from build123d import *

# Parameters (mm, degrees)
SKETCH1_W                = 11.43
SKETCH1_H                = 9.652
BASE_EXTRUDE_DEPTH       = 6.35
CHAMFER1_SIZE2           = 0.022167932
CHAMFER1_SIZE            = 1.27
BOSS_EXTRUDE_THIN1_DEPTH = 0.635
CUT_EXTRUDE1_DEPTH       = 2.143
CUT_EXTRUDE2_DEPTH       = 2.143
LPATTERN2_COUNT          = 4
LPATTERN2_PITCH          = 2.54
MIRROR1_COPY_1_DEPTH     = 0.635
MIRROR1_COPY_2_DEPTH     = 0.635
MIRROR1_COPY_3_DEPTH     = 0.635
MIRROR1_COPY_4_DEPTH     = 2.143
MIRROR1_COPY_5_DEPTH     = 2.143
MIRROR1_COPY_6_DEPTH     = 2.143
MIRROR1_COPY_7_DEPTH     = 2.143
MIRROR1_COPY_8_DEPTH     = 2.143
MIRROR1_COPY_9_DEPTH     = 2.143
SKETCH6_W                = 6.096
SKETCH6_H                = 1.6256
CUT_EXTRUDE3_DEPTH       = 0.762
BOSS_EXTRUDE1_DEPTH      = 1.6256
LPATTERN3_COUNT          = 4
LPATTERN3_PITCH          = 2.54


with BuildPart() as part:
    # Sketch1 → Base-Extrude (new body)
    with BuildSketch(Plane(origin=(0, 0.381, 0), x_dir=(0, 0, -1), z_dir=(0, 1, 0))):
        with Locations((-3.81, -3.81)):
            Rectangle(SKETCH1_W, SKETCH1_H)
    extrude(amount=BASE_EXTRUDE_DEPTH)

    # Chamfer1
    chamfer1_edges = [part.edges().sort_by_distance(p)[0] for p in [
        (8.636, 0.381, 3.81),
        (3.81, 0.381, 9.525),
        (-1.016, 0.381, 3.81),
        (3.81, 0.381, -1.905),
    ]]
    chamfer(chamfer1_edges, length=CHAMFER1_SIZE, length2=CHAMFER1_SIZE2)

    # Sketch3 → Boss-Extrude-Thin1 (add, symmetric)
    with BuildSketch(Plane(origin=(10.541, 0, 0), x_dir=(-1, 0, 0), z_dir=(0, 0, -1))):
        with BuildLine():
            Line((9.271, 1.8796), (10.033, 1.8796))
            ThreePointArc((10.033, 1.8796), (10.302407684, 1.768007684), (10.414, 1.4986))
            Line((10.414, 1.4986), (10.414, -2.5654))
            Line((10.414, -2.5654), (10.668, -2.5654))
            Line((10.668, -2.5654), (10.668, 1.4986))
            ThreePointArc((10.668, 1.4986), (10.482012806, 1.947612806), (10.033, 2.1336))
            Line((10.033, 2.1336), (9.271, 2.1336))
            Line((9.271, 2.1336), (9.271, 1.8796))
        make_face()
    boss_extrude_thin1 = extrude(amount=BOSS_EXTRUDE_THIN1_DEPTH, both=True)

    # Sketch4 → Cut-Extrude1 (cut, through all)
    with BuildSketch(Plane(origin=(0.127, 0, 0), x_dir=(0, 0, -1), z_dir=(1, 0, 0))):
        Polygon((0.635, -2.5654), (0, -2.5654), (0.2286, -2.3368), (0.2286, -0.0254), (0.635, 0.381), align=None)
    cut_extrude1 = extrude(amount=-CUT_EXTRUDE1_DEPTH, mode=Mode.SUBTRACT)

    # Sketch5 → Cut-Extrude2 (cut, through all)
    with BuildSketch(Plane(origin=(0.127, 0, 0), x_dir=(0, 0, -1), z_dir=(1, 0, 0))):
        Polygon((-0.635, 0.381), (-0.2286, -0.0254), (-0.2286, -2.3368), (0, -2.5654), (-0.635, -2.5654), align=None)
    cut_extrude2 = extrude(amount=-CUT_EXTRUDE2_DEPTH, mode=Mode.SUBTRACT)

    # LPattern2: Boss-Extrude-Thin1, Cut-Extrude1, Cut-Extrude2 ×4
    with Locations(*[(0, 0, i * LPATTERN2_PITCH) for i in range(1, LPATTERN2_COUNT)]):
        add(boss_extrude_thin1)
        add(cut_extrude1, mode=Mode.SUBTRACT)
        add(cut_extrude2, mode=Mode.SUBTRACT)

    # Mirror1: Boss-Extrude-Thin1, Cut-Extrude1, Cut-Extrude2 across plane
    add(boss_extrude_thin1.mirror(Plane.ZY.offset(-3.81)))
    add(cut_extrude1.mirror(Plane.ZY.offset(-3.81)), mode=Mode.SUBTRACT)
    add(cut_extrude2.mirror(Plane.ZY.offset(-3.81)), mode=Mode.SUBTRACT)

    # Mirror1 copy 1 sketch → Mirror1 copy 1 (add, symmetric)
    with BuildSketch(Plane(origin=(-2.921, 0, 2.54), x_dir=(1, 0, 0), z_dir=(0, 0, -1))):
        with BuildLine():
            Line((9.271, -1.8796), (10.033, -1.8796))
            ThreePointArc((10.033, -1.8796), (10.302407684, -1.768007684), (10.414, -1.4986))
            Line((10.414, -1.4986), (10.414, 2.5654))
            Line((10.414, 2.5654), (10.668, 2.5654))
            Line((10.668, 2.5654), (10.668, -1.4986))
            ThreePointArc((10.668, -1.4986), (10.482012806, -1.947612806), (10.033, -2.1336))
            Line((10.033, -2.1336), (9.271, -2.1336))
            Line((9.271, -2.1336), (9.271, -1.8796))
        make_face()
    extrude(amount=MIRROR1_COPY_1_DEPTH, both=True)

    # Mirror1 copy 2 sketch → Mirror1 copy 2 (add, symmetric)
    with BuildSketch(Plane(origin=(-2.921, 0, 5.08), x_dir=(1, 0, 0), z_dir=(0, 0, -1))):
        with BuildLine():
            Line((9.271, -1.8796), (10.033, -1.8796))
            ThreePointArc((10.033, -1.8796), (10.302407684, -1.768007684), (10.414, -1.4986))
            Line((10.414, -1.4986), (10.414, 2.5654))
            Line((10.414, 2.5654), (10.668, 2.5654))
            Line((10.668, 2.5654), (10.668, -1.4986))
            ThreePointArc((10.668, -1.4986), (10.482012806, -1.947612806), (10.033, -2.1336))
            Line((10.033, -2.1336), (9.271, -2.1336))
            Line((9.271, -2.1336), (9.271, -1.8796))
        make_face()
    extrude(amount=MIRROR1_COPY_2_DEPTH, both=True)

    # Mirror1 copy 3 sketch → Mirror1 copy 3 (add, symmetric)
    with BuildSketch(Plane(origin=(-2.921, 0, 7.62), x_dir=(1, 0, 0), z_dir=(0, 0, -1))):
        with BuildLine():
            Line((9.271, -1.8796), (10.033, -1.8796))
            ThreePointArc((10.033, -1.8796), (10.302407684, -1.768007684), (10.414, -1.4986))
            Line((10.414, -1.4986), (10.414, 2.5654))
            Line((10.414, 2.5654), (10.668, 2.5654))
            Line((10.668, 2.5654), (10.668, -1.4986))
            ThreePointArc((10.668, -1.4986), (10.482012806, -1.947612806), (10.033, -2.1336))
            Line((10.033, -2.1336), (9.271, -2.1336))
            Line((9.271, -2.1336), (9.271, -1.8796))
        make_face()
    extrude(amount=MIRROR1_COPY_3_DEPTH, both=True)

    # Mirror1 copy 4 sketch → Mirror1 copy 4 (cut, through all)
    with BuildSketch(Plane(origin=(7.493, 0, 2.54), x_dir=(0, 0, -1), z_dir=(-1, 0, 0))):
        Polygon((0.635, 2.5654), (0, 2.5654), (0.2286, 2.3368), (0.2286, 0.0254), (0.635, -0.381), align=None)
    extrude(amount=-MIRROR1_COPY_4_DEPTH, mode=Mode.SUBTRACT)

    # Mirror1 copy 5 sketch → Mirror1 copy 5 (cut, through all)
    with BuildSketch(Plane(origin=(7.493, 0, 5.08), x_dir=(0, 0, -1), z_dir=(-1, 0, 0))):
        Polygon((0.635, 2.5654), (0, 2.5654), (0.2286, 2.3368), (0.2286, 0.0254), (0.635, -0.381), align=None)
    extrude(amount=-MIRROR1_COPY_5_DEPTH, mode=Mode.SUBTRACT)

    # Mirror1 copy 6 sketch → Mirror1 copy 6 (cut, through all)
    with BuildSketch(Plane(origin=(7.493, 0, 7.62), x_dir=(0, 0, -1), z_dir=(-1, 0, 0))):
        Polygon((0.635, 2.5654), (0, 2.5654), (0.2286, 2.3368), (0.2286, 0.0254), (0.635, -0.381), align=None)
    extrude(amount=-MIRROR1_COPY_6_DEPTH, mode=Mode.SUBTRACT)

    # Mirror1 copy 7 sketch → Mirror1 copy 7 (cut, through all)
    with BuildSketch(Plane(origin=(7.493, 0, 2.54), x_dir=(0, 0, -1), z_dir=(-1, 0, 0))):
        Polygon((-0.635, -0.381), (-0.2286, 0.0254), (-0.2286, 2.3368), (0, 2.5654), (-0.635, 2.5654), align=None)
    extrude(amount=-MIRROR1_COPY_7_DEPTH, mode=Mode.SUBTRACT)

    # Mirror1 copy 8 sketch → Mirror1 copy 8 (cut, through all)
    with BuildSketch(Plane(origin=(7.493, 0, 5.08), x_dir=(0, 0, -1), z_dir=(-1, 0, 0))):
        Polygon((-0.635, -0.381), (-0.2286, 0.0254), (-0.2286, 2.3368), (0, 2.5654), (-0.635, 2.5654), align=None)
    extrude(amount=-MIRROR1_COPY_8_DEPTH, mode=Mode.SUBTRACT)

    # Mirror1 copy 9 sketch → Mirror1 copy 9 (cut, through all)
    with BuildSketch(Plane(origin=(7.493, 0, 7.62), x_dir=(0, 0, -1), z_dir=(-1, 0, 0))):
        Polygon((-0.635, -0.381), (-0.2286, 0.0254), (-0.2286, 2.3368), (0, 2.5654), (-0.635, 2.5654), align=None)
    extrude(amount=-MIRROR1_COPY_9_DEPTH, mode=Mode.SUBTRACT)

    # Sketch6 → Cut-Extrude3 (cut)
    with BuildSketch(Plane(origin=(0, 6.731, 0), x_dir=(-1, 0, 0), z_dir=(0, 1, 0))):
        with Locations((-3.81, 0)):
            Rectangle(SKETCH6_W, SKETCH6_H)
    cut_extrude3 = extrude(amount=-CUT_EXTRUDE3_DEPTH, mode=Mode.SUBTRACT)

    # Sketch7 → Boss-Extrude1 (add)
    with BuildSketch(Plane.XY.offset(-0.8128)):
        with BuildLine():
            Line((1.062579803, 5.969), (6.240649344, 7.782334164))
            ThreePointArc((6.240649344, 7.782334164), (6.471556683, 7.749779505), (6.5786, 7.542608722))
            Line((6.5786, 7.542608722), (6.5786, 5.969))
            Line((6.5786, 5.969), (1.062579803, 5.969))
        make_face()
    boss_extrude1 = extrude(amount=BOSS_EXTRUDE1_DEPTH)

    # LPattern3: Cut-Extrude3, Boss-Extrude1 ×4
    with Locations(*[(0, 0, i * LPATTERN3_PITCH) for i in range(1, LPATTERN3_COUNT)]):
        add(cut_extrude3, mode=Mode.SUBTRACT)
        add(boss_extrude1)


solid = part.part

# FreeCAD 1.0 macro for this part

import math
import FreeCAD as App
import Part
import Sketcher
Q = App.Units.Quantity


def edges_at(feature, points):
    """Names of the edges that pass closest to the given points."""
    edges = feature.Shape.Edges
    near = lambda p: min(range(len(edges)), key=lambda i: edges[i].distToShape(Part.Vertex(*p))[0])
    return sorted({f"Edge{near(p) + 1}" for p in points})

doc = App.newDocument("Part")
body = doc.addObject("PartDesign::Body", "Body")

# Sketch on XZ plane
sketch1 = doc.addObject("Sketcher::SketchObject", "Sketch")
body.addObject(sketch1)
sketch1.AttachmentSupport = (doc.XZ_Plane, [""])
sketch1.MapMode = "FlatFace"
sketch1.AttachmentOffset = App.Placement(App.Vector(0, 0, -0.015 * 25.4), App.Rotation())
sketch1.addGeometry([
    Part.LineSegment(App.Vector(-1.016, 9.525, 0), App.Vector(8.636, 9.525, 0)),
    Part.LineSegment(App.Vector(8.636, 9.525, 0), App.Vector(8.636, -1.905, 0)),
    Part.LineSegment(App.Vector(8.636, -1.905, 0), App.Vector(-1.016, -1.905, 0)),
    Part.LineSegment(App.Vector(-1.016, -1.905, 0), App.Vector(-1.016, 9.525, 0)),
], False)
sketch1.addConstraint([
    Sketcher.Constraint("Coincident", 0, 2, 1, 1),
    Sketcher.Constraint("Coincident", 1, 2, 2, 1),
    Sketcher.Constraint("Coincident", 2, 2, 3, 1),
    Sketcher.Constraint("Coincident", 3, 2, 0, 1),
    Sketcher.Constraint("Horizontal", 0),
    Sketcher.Constraint("Vertical", 1),
    Sketcher.Constraint("Horizontal", 2),
    Sketcher.Constraint("Vertical", 3),
    Sketcher.Constraint("DistanceX", 0, 1, 0, 2, Q("0.38 in")),
    Sketcher.Constraint("DistanceY", 1, 2, 1, 1, Q("0.45 in")),
    Sketcher.Constraint("DistanceX", -1, 1, 0, 2, Q("0.34 in")),
    Sketcher.Constraint("DistanceY", -1, 1, 0, 2, Q("0.375 in")),
])
pad1 = doc.addObject("PartDesign::Pad", "Pad")
body.addObject(pad1)
pad1.Profile = sketch1
pad1.Length = Q("0.25 in")
pad1.Reversed = True
doc.recompute()

chamfer = doc.addObject("PartDesign::Chamfer", "Chamfer")
body.addObject(chamfer)
chamfer.Base = (pad1, edges_at(pad1, [
    (8.636, 0.381, 3.81),
    (3.81, 0.381, 9.525),
    (-1.016, 0.381, 3.81),
    (3.81, 0.381, -1.905),
]))
chamfer.ChamferType = "Two distances"
chamfer.Size = Q("0.05 in")
chamfer.Size2 = 0.022168

# Sketch on XY plane
sketch2 = doc.addObject("Sketcher::SketchObject", "Sketch001")
body.addObject(sketch2)
sketch2.AttachmentSupport = (doc.XY_Plane, [""])
sketch2.MapMode = "FlatFace"
sketch2.addGeometry([
    Part.LineSegment(App.Vector(1.27, 1.8796, 0), App.Vector(0.508, 1.8796, 0)),  # 0
    Part.ArcOfCircle(Part.Circle(App.Vector(0.508, 1.4986, 0), App.Vector(0, 0, 1), 0.381), math.radians(90), math.radians(180)),  # 1
    Part.LineSegment(App.Vector(0.127, 1.4986, 0), App.Vector(0.127, -2.5654, 0)),  # 2
    Part.LineSegment(App.Vector(0.127, -2.5654, 0), App.Vector(-0.127, -2.5654, 0)),  # 3
    Part.LineSegment(App.Vector(-0.127, -2.5654, 0), App.Vector(-0.127, 1.4986, 0)),  # 4
    Part.ArcOfCircle(Part.Circle(App.Vector(0.508, 1.4986, 0), App.Vector(0, 0, 1), 0.635), math.radians(90), math.radians(180)),  # 5
    Part.LineSegment(App.Vector(0.508, 2.1336, 0), App.Vector(1.27, 2.1336, 0)),  # 6
    Part.LineSegment(App.Vector(1.27, 2.1336, 0), App.Vector(1.27, 1.8796, 0)),  # 7
], False)
sketch2.addConstraint([
    Sketcher.Constraint("Tangent", 0, 2, 1, 1),
    Sketcher.Constraint("Tangent", 1, 2, 2, 1),
    Sketcher.Constraint("Coincident", 2, 2, 3, 1),
    Sketcher.Constraint("Coincident", 3, 2, 4, 1),
    Sketcher.Constraint("Tangent", 4, 2, 5, 2),
    Sketcher.Constraint("Tangent", 5, 1, 6, 1),
    Sketcher.Constraint("Coincident", 6, 2, 7, 1),
    Sketcher.Constraint("Coincident", 7, 2, 0, 1),
    Sketcher.Constraint("Horizontal", 0),
    Sketcher.Constraint("Vertical", 2),
    Sketcher.Constraint("Horizontal", 3),
    Sketcher.Constraint("Vertical", 4),
    Sketcher.Constraint("Horizontal", 6),
    Sketcher.Constraint("Vertical", 7),
    Sketcher.Constraint("Coincident", 5, 3, 1, 3),
    Sketcher.Constraint("Radius", 1, Q("0.015 in")),
    Sketcher.Constraint("Radius", 5, Q("0.025 in")),
    Sketcher.Constraint("DistanceX", 0, 2, 0, 1, Q("0.03 in")),
    Sketcher.Constraint("DistanceY", 2, 2, 2, 1, Q("0.16 in")),
    Sketcher.Constraint("DistanceX", -1, 1, 1, 3, Q("0.02 in")),
    Sketcher.Constraint("DistanceY", -1, 1, 1, 3, Q("0.059 in")),
])
pad2 = doc.addObject("PartDesign::Pad", "Pad001")
body.addObject(pad2)
pad2.Profile = sketch2
pad2.Length = Q("0.05 in")
pad2.Midplane = True

# Sketch on YZ plane
sketch3 = doc.addObject("Sketcher::SketchObject", "Sketch002")
body.addObject(sketch3)
sketch3.AttachmentSupport = (doc.YZ_Plane, [""])
sketch3.MapMode = "FlatFace"
sketch3.AttachmentOffset = App.Placement(App.Vector(0, 0, 0.005 * 25.4), App.Rotation())
sketch3.addGeometry([
    Part.LineSegment(App.Vector(-2.5654, 0, 0), App.Vector(-2.5654, -0.635, 0)),  # 0
    Part.LineSegment(App.Vector(-2.5654, -0.635, 0), App.Vector(0.381, -0.635, 0)),  # 1
    Part.LineSegment(App.Vector(0.381, -0.635, 0), App.Vector(-0.0254, -0.2286, 0)),  # 2
    Part.LineSegment(App.Vector(-0.0254, -0.2286, 0), App.Vector(-2.3368, -0.2286, 0)),  # 3
    Part.LineSegment(App.Vector(-2.3368, -0.2286, 0), App.Vector(-2.5654, 0, 0)),  # 4
], False)
sketch3.addConstraint([
    Sketcher.Constraint("Coincident", 0, 2, 1, 1),
    Sketcher.Constraint("Coincident", 1, 2, 2, 1),
    Sketcher.Constraint("Coincident", 2, 2, 3, 1),
    Sketcher.Constraint("Coincident", 3, 2, 4, 1),
    Sketcher.Constraint("Coincident", 4, 2, 0, 1),
    Sketcher.Constraint("Vertical", 0),
    Sketcher.Constraint("Horizontal", 1),
    Sketcher.Constraint("Horizontal", 3),
    Sketcher.Constraint("PointOnObject", 4, 2, -1),
    Sketcher.Constraint("Parallel", 2, 4),
    Sketcher.Constraint("Angle", 2, Q("135 deg")),
    Sketcher.Constraint("DistanceX", 0, 2, 2, 2, Q("0.1 in")),
    Sketcher.Constraint("DistanceX", 1, 1, 1, 2, Q("0.116 in")),
    Sketcher.Constraint("DistanceX", 3, 2, 3, 1, Q("0.091 in")),
    Sketcher.Constraint("DistanceX", 0, 2, -1, 1, Q("0.101 in")),
])
pocket1 = doc.addObject("PartDesign::Pocket", "Pocket")
body.addObject(pocket1)
pocket1.Profile = sketch3
pocket1.Type = "ThroughAll"

# Sketch on YZ plane
sketch4 = doc.addObject("Sketcher::SketchObject", "Sketch003")
body.addObject(sketch4)
sketch4.AttachmentSupport = (doc.YZ_Plane, [""])
sketch4.MapMode = "FlatFace"
sketch4.AttachmentOffset = App.Placement(App.Vector(0, 0, 0.005 * 25.4), App.Rotation())
sketch4.addGeometry([
    Part.LineSegment(App.Vector(-0.0254, 0.2286, 0), App.Vector(0.381, 0.635, 0)),  # 0
    Part.LineSegment(App.Vector(0.381, 0.635, 0), App.Vector(-2.5654, 0.635, 0)),  # 1
    Part.LineSegment(App.Vector(-2.5654, 0.635, 0), App.Vector(-2.5654, 0, 0)),  # 2
    Part.LineSegment(App.Vector(-2.5654, 0, 0), App.Vector(-2.3368, 0.2286, 0)),  # 3
    Part.LineSegment(App.Vector(-2.3368, 0.2286, 0), App.Vector(-0.0254, 0.2286, 0)),  # 4
], False)
sketch4.addConstraint([
    Sketcher.Constraint("Coincident", 0, 2, 1, 1),
    Sketcher.Constraint("Coincident", 1, 2, 2, 1),
    Sketcher.Constraint("Coincident", 2, 2, 3, 1),
    Sketcher.Constraint("Coincident", 3, 2, 4, 1),
    Sketcher.Constraint("Coincident", 4, 2, 0, 1),
    Sketcher.Constraint("Horizontal", 1),
    Sketcher.Constraint("Vertical", 2),
    Sketcher.Constraint("Horizontal", 4),
    Sketcher.Constraint("PointOnObject", 2, 2, -1),
    Sketcher.Constraint("Parallel", 0, 3),
    Sketcher.Constraint("Angle", 0, Q("45 deg")),
    Sketcher.Constraint("DistanceX", 2, 2, 4, 2, Q("0.1 in")),
    Sketcher.Constraint("DistanceX", 1, 2, 1, 1, Q("0.116 in")),
    Sketcher.Constraint("DistanceX", 4, 1, 4, 2, Q("0.091 in")),
    Sketcher.Constraint("DistanceX", -1, 1, 0, 2, Q("0.015 in")),
])
pocket2 = doc.addObject("PartDesign::Pocket", "Pocket001")
body.addObject(pocket2)
pocket2.Profile = sketch4
pocket2.Type = "ThroughAll"
doc.recompute()

linearpattern = doc.addObject("PartDesign::LinearPattern", "LinearPattern")
body.addObject(linearpattern)
linearpattern.Originals = [pad2, pocket1, pocket2]
linearpattern.Direction = (doc.Z_Axis, [""])
linearpattern.Mode = "offset"
linearpattern.Offset = Q("0.1 in")
linearpattern.Occurrences = 4
body.Tip = linearpattern
doc.recompute()

datumplane = doc.addObject("PartDesign::Plane", "DatumPlane")
body.addObject(datumplane)
datumplane.AttachmentSupport = (doc.YZ_Plane, [""])
datumplane.MapMode = "FlatFace"
datumplane.AttachmentOffset = App.Placement(App.Vector(0, 0, 0.15 * 25.4), App.Rotation())
mirrored = doc.addObject("PartDesign::Mirrored", "Mirrored")
body.addObject(mirrored)
mirrored.Originals = [pad2, pocket1, pocket2]
mirrored.MirrorPlane = (datumplane, [""])
body.Tip = mirrored

# Sketch on XY plane
sketch5 = doc.addObject("Sketcher::SketchObject", "Sketch004")
body.addObject(sketch5)
sketch5.AttachmentSupport = (doc.XY_Plane, [""])
sketch5.MapMode = "FlatFace"
sketch5.AttachmentOffset = App.Placement(App.Vector(0, 0, 0.1 * 25.4), App.Rotation())
sketch5.addGeometry([
    Part.LineSegment(App.Vector(7.112, 1.8796, 0), App.Vector(6.35, 1.8796, 0)),  # 0
    Part.LineSegment(App.Vector(6.35, 1.8796, 0), App.Vector(6.35, 2.1336, 0)),  # 1
    Part.LineSegment(App.Vector(6.35, 2.1336, 0), App.Vector(7.112, 2.1336, 0)),  # 2
    Part.ArcOfCircle(Part.Circle(App.Vector(7.112, 1.4986, 0), App.Vector(0, 0, 1), 0.635), math.radians(0), math.radians(90)),  # 3
    Part.LineSegment(App.Vector(7.747, 1.4986, 0), App.Vector(7.747, -2.5654, 0)),  # 4
    Part.LineSegment(App.Vector(7.747, -2.5654, 0), App.Vector(7.493, -2.5654, 0)),  # 5
    Part.LineSegment(App.Vector(7.493, -2.5654, 0), App.Vector(7.493, 1.4986, 0)),  # 6
    Part.ArcOfCircle(Part.Circle(App.Vector(7.112, 1.4986, 0), App.Vector(0, 0, 1), 0.381), math.radians(0), math.radians(90)),  # 7
], False)
sketch5.addConstraint([
    Sketcher.Constraint("Coincident", 0, 2, 1, 1),
    Sketcher.Constraint("Coincident", 1, 2, 2, 1),
    Sketcher.Constraint("Tangent", 2, 2, 3, 2),
    Sketcher.Constraint("Tangent", 3, 1, 4, 1),
    Sketcher.Constraint("Coincident", 4, 2, 5, 1),
    Sketcher.Constraint("Coincident", 5, 2, 6, 1),
    Sketcher.Constraint("Tangent", 6, 2, 7, 1),
    Sketcher.Constraint("Tangent", 7, 2, 0, 1),
    Sketcher.Constraint("Horizontal", 0),
    Sketcher.Constraint("Vertical", 1),
    Sketcher.Constraint("Horizontal", 2),
    Sketcher.Constraint("Vertical", 4),
    Sketcher.Constraint("Horizontal", 5),
    Sketcher.Constraint("Vertical", 6),
    Sketcher.Constraint("Coincident", 7, 3, 3, 3),
    Sketcher.Constraint("Radius", 3, Q("0.025 in")),
    Sketcher.Constraint("Radius", 7, Q("0.015 in")),
    Sketcher.Constraint("DistanceX", 0, 2, 0, 1, Q("0.03 in")),
    Sketcher.Constraint("DistanceY", 4, 2, 4, 1, Q("0.16 in")),
    Sketcher.Constraint("DistanceX", -1, 1, 3, 3, Q("0.28 in")),
    Sketcher.Constraint("DistanceY", -1, 1, 3, 3, Q("0.059 in")),
])
pad3 = doc.addObject("PartDesign::Pad", "Pad002")
body.addObject(pad3)
pad3.Profile = sketch5
pad3.Length = Q("0.05 in")
pad3.Midplane = True

# Sketch on XY plane
sketch6 = doc.addObject("Sketcher::SketchObject", "Sketch005")
body.addObject(sketch6)
sketch6.AttachmentSupport = (doc.XY_Plane, [""])
sketch6.MapMode = "FlatFace"
sketch6.AttachmentOffset = App.Placement(App.Vector(0, 0, 0.2 * 25.4), App.Rotation())
sketch6.addGeometry([
    Part.LineSegment(App.Vector(7.112, 1.8796, 0), App.Vector(6.35, 1.8796, 0)),  # 0
    Part.LineSegment(App.Vector(6.35, 1.8796, 0), App.Vector(6.35, 2.1336, 0)),  # 1
    Part.LineSegment(App.Vector(6.35, 2.1336, 0), App.Vector(7.112, 2.1336, 0)),  # 2
    Part.ArcOfCircle(Part.Circle(App.Vector(7.112, 1.4986, 0), App.Vector(0, 0, 1), 0.635), math.radians(0), math.radians(90)),  # 3
    Part.LineSegment(App.Vector(7.747, 1.4986, 0), App.Vector(7.747, -2.5654, 0)),  # 4
    Part.LineSegment(App.Vector(7.747, -2.5654, 0), App.Vector(7.493, -2.5654, 0)),  # 5
    Part.LineSegment(App.Vector(7.493, -2.5654, 0), App.Vector(7.493, 1.4986, 0)),  # 6
    Part.ArcOfCircle(Part.Circle(App.Vector(7.112, 1.4986, 0), App.Vector(0, 0, 1), 0.381), math.radians(0), math.radians(90)),  # 7
], False)
sketch6.addConstraint([
    Sketcher.Constraint("Coincident", 0, 2, 1, 1),
    Sketcher.Constraint("Coincident", 1, 2, 2, 1),
    Sketcher.Constraint("Tangent", 2, 2, 3, 2),
    Sketcher.Constraint("Tangent", 3, 1, 4, 1),
    Sketcher.Constraint("Coincident", 4, 2, 5, 1),
    Sketcher.Constraint("Coincident", 5, 2, 6, 1),
    Sketcher.Constraint("Tangent", 6, 2, 7, 1),
    Sketcher.Constraint("Tangent", 7, 2, 0, 1),
    Sketcher.Constraint("Horizontal", 0),
    Sketcher.Constraint("Vertical", 1),
    Sketcher.Constraint("Horizontal", 2),
    Sketcher.Constraint("Vertical", 4),
    Sketcher.Constraint("Horizontal", 5),
    Sketcher.Constraint("Vertical", 6),
    Sketcher.Constraint("Coincident", 7, 3, 3, 3),
    Sketcher.Constraint("Radius", 3, Q("0.025 in")),
    Sketcher.Constraint("Radius", 7, Q("0.015 in")),
    Sketcher.Constraint("DistanceX", 0, 2, 0, 1, Q("0.03 in")),
    Sketcher.Constraint("DistanceY", 4, 2, 4, 1, Q("0.16 in")),
    Sketcher.Constraint("DistanceX", -1, 1, 3, 3, Q("0.28 in")),
    Sketcher.Constraint("DistanceY", -1, 1, 3, 3, Q("0.059 in")),
])
pad4 = doc.addObject("PartDesign::Pad", "Pad003")
body.addObject(pad4)
pad4.Profile = sketch6
pad4.Length = Q("0.05 in")
pad4.Midplane = True

# Sketch on XY plane
sketch7 = doc.addObject("Sketcher::SketchObject", "Sketch006")
body.addObject(sketch7)
sketch7.AttachmentSupport = (doc.XY_Plane, [""])
sketch7.MapMode = "FlatFace"
sketch7.AttachmentOffset = App.Placement(App.Vector(0, 0, 0.3 * 25.4), App.Rotation())
sketch7.addGeometry([
    Part.LineSegment(App.Vector(7.112, 1.8796, 0), App.Vector(6.35, 1.8796, 0)),  # 0
    Part.LineSegment(App.Vector(6.35, 1.8796, 0), App.Vector(6.35, 2.1336, 0)),  # 1
    Part.LineSegment(App.Vector(6.35, 2.1336, 0), App.Vector(7.112, 2.1336, 0)),  # 2
    Part.ArcOfCircle(Part.Circle(App.Vector(7.112, 1.4986, 0), App.Vector(0, 0, 1), 0.635), math.radians(0), math.radians(90)),  # 3
    Part.LineSegment(App.Vector(7.747, 1.4986, 0), App.Vector(7.747, -2.5654, 0)),  # 4
    Part.LineSegment(App.Vector(7.747, -2.5654, 0), App.Vector(7.493, -2.5654, 0)),  # 5
    Part.LineSegment(App.Vector(7.493, -2.5654, 0), App.Vector(7.493, 1.4986, 0)),  # 6
    Part.ArcOfCircle(Part.Circle(App.Vector(7.112, 1.4986, 0), App.Vector(0, 0, 1), 0.381), math.radians(0), math.radians(90)),  # 7
], False)
sketch7.addConstraint([
    Sketcher.Constraint("Coincident", 0, 2, 1, 1),
    Sketcher.Constraint("Coincident", 1, 2, 2, 1),
    Sketcher.Constraint("Tangent", 2, 2, 3, 2),
    Sketcher.Constraint("Tangent", 3, 1, 4, 1),
    Sketcher.Constraint("Coincident", 4, 2, 5, 1),
    Sketcher.Constraint("Coincident", 5, 2, 6, 1),
    Sketcher.Constraint("Tangent", 6, 2, 7, 1),
    Sketcher.Constraint("Tangent", 7, 2, 0, 1),
    Sketcher.Constraint("Horizontal", 0),
    Sketcher.Constraint("Vertical", 1),
    Sketcher.Constraint("Horizontal", 2),
    Sketcher.Constraint("Vertical", 4),
    Sketcher.Constraint("Horizontal", 5),
    Sketcher.Constraint("Vertical", 6),
    Sketcher.Constraint("Coincident", 7, 3, 3, 3),
    Sketcher.Constraint("Radius", 3, Q("0.025 in")),
    Sketcher.Constraint("Radius", 7, Q("0.015 in")),
    Sketcher.Constraint("DistanceX", 0, 2, 0, 1, Q("0.03 in")),
    Sketcher.Constraint("DistanceY", 4, 2, 4, 1, Q("0.16 in")),
    Sketcher.Constraint("DistanceX", -1, 1, 3, 3, Q("0.28 in")),
    Sketcher.Constraint("DistanceY", -1, 1, 3, 3, Q("0.059 in")),
])
pad5 = doc.addObject("PartDesign::Pad", "Pad004")
body.addObject(pad5)
pad5.Profile = sketch7
pad5.Length = Q("0.05 in")
pad5.Midplane = True

# Sketch on YZ plane
sketch8 = doc.addObject("Sketcher::SketchObject", "Sketch007")
body.addObject(sketch8)
sketch8.AttachmentSupport = (doc.YZ_Plane, [""])
sketch8.MapMode = "FlatFace"
sketch8.AttachmentOffset = App.Placement(App.Vector(0, 0, 0.295 * 25.4), App.Rotation())
sketch8.addGeometry([
    Part.LineSegment(App.Vector(-2.5654, 1.905, 0), App.Vector(-2.5654, 2.54, 0)),  # 0
    Part.LineSegment(App.Vector(-2.5654, 2.54, 0), App.Vector(-2.3368, 2.3114, 0)),  # 1
    Part.LineSegment(App.Vector(-2.3368, 2.3114, 0), App.Vector(-0.0254, 2.3114, 0)),  # 2
    Part.LineSegment(App.Vector(-0.0254, 2.3114, 0), App.Vector(0.381, 1.905, 0)),  # 3
    Part.LineSegment(App.Vector(0.381, 1.905, 0), App.Vector(-2.5654, 1.905, 0)),  # 4
], False)
sketch8.addConstraint([
    Sketcher.Constraint("Coincident", 0, 2, 1, 1),
    Sketcher.Constraint("Coincident", 1, 2, 2, 1),
    Sketcher.Constraint("Coincident", 2, 2, 3, 1),
    Sketcher.Constraint("Coincident", 3, 2, 4, 1),
    Sketcher.Constraint("Coincident", 4, 2, 0, 1),
    Sketcher.Constraint("Vertical", 0),
    Sketcher.Constraint("Horizontal", 2),
    Sketcher.Constraint("Horizontal", 4),
    Sketcher.Constraint("Parallel", 1, 3),
    Sketcher.Constraint("Angle", 1, Q("-45 deg")),
    Sketcher.Constraint("DistanceY", -1, 1, 0, 2, Q("0.1 in")),
    Sketcher.Constraint("DistanceX", 0, 2, 2, 2, Q("0.1 in")),
    Sketcher.Constraint("DistanceX", 2, 1, 2, 2, Q("0.091 in")),
    Sketcher.Constraint("DistanceX", 4, 2, 4, 1, Q("0.116 in")),
    Sketcher.Constraint("DistanceX", 0, 2, -1, 1, Q("0.101 in")),
])
pocket3 = doc.addObject("PartDesign::Pocket", "Pocket002")
body.addObject(pocket3)
pocket3.Profile = sketch8
pocket3.Type = "ThroughAll"
pocket3.Reversed = True

# Sketch on YZ plane
sketch9 = doc.addObject("Sketcher::SketchObject", "Sketch008")
body.addObject(sketch9)
sketch9.AttachmentSupport = (doc.YZ_Plane, [""])
sketch9.MapMode = "FlatFace"
sketch9.AttachmentOffset = App.Placement(App.Vector(0, 0, 0.295 * 25.4), App.Rotation())
sketch9.addGeometry([
    Part.LineSegment(App.Vector(-2.5654, 4.445, 0), App.Vector(-2.5654, 5.08, 0)),  # 0
    Part.LineSegment(App.Vector(-2.5654, 5.08, 0), App.Vector(-2.3368, 4.8514, 0)),  # 1
    Part.LineSegment(App.Vector(-2.3368, 4.8514, 0), App.Vector(-0.0254, 4.8514, 0)),  # 2
    Part.LineSegment(App.Vector(-0.0254, 4.8514, 0), App.Vector(0.381, 4.445, 0)),  # 3
    Part.LineSegment(App.Vector(0.381, 4.445, 0), App.Vector(-2.5654, 4.445, 0)),  # 4
], False)
sketch9.addConstraint([
    Sketcher.Constraint("Coincident", 0, 2, 1, 1),
    Sketcher.Constraint("Coincident", 1, 2, 2, 1),
    Sketcher.Constraint("Coincident", 2, 2, 3, 1),
    Sketcher.Constraint("Coincident", 3, 2, 4, 1),
    Sketcher.Constraint("Coincident", 4, 2, 0, 1),
    Sketcher.Constraint("Vertical", 0),
    Sketcher.Constraint("Horizontal", 2),
    Sketcher.Constraint("Horizontal", 4),
    Sketcher.Constraint("Parallel", 1, 3),
    Sketcher.Constraint("Angle", 1, Q("-45 deg")),
    Sketcher.Constraint("DistanceY", -1, 1, 0, 2, Q("0.2 in")),
    Sketcher.Constraint("DistanceX", 0, 2, 2, 2, Q("0.1 in")),
    Sketcher.Constraint("DistanceX", 2, 1, 2, 2, Q("0.091 in")),
    Sketcher.Constraint("DistanceX", 4, 2, 4, 1, Q("0.116 in")),
    Sketcher.Constraint("DistanceX", 0, 2, -1, 1, Q("0.101 in")),
])
pocket4 = doc.addObject("PartDesign::Pocket", "Pocket003")
body.addObject(pocket4)
pocket4.Profile = sketch9
pocket4.Type = "ThroughAll"
pocket4.Reversed = True

# Sketch on YZ plane
sketch10 = doc.addObject("Sketcher::SketchObject", "Sketch009")
body.addObject(sketch10)
sketch10.AttachmentSupport = (doc.YZ_Plane, [""])
sketch10.MapMode = "FlatFace"
sketch10.AttachmentOffset = App.Placement(App.Vector(0, 0, 0.295 * 25.4), App.Rotation())
sketch10.addGeometry([
    Part.LineSegment(App.Vector(-2.5654, 6.985, 0), App.Vector(-2.5654, 7.62, 0)),  # 0
    Part.LineSegment(App.Vector(-2.5654, 7.62, 0), App.Vector(-2.3368, 7.3914, 0)),  # 1
    Part.LineSegment(App.Vector(-2.3368, 7.3914, 0), App.Vector(-0.0254, 7.3914, 0)),  # 2
    Part.LineSegment(App.Vector(-0.0254, 7.3914, 0), App.Vector(0.381, 6.985, 0)),  # 3
    Part.LineSegment(App.Vector(0.381, 6.985, 0), App.Vector(-2.5654, 6.985, 0)),  # 4
], False)
sketch10.addConstraint([
    Sketcher.Constraint("Coincident", 0, 2, 1, 1),
    Sketcher.Constraint("Coincident", 1, 2, 2, 1),
    Sketcher.Constraint("Coincident", 2, 2, 3, 1),
    Sketcher.Constraint("Coincident", 3, 2, 4, 1),
    Sketcher.Constraint("Coincident", 4, 2, 0, 1),
    Sketcher.Constraint("Vertical", 0),
    Sketcher.Constraint("Horizontal", 2),
    Sketcher.Constraint("Horizontal", 4),
    Sketcher.Constraint("Parallel", 1, 3),
    Sketcher.Constraint("Angle", 1, Q("-45 deg")),
    Sketcher.Constraint("DistanceY", -1, 1, 0, 2, Q("0.3 in")),
    Sketcher.Constraint("DistanceX", 0, 2, 2, 2, Q("0.1 in")),
    Sketcher.Constraint("DistanceX", 2, 1, 2, 2, Q("0.091 in")),
    Sketcher.Constraint("DistanceX", 4, 2, 4, 1, Q("0.116 in")),
    Sketcher.Constraint("DistanceX", 0, 2, -1, 1, Q("0.101 in")),
])
pocket5 = doc.addObject("PartDesign::Pocket", "Pocket004")
body.addObject(pocket5)
pocket5.Profile = sketch10
pocket5.Type = "ThroughAll"
pocket5.Reversed = True

# Sketch on YZ plane
sketch11 = doc.addObject("Sketcher::SketchObject", "Sketch010")
body.addObject(sketch11)
sketch11.AttachmentSupport = (doc.YZ_Plane, [""])
sketch11.MapMode = "FlatFace"
sketch11.AttachmentOffset = App.Placement(App.Vector(0, 0, 0.295 * 25.4), App.Rotation())
sketch11.addGeometry([
    Part.LineSegment(App.Vector(0.381, 3.175, 0), App.Vector(-0.0254, 2.7686, 0)),  # 0
    Part.LineSegment(App.Vector(-0.0254, 2.7686, 0), App.Vector(-2.3368, 2.7686, 0)),  # 1
    Part.LineSegment(App.Vector(-2.3368, 2.7686, 0), App.Vector(-2.5654, 2.54, 0)),  # 2
    Part.LineSegment(App.Vector(-2.5654, 2.54, 0), App.Vector(-2.5654, 3.175, 0)),  # 3
    Part.LineSegment(App.Vector(-2.5654, 3.175, 0), App.Vector(0.381, 3.175, 0)),  # 4
], False)
sketch11.addConstraint([
    Sketcher.Constraint("Coincident", 0, 2, 1, 1),
    Sketcher.Constraint("Coincident", 1, 2, 2, 1),
    Sketcher.Constraint("Coincident", 2, 2, 3, 1),
    Sketcher.Constraint("Coincident", 3, 2, 4, 1),
    Sketcher.Constraint("Coincident", 4, 2, 0, 1),
    Sketcher.Constraint("Horizontal", 1),
    Sketcher.Constraint("Vertical", 3),
    Sketcher.Constraint("Horizontal", 4),
    Sketcher.Constraint("Parallel", 0, 2),
    Sketcher.Constraint("Angle", 0, Q("-135 deg")),
    Sketcher.Constraint("DistanceY", -1, 1, 2, 2, Q("0.1 in")),
    Sketcher.Constraint("DistanceX", 2, 2, 0, 2, Q("0.1 in")),
    Sketcher.Constraint("DistanceX", 1, 2, 1, 1, Q("0.091 in")),
    Sketcher.Constraint("DistanceX", 4, 1, 4, 2, Q("0.116 in")),
    Sketcher.Constraint("DistanceX", 0, 2, -1, 1, Q("0.001 in")),
])
pocket6 = doc.addObject("PartDesign::Pocket", "Pocket005")
body.addObject(pocket6)
pocket6.Profile = sketch11
pocket6.Type = "ThroughAll"
pocket6.Reversed = True

# Sketch on YZ plane
sketch12 = doc.addObject("Sketcher::SketchObject", "Sketch011")
body.addObject(sketch12)
sketch12.AttachmentSupport = (doc.YZ_Plane, [""])
sketch12.MapMode = "FlatFace"
sketch12.AttachmentOffset = App.Placement(App.Vector(0, 0, 0.295 * 25.4), App.Rotation())
sketch12.addGeometry([
    Part.LineSegment(App.Vector(0.381, 5.715, 0), App.Vector(-0.0254, 5.3086, 0)),  # 0
    Part.LineSegment(App.Vector(-0.0254, 5.3086, 0), App.Vector(-2.3368, 5.3086, 0)),  # 1
    Part.LineSegment(App.Vector(-2.3368, 5.3086, 0), App.Vector(-2.5654, 5.08, 0)),  # 2
    Part.LineSegment(App.Vector(-2.5654, 5.08, 0), App.Vector(-2.5654, 5.715, 0)),  # 3
    Part.LineSegment(App.Vector(-2.5654, 5.715, 0), App.Vector(0.381, 5.715, 0)),  # 4
], False)
sketch12.addConstraint([
    Sketcher.Constraint("Coincident", 0, 2, 1, 1),
    Sketcher.Constraint("Coincident", 1, 2, 2, 1),
    Sketcher.Constraint("Coincident", 2, 2, 3, 1),
    Sketcher.Constraint("Coincident", 3, 2, 4, 1),
    Sketcher.Constraint("Coincident", 4, 2, 0, 1),
    Sketcher.Constraint("Horizontal", 1),
    Sketcher.Constraint("Vertical", 3),
    Sketcher.Constraint("Horizontal", 4),
    Sketcher.Constraint("Parallel", 0, 2),
    Sketcher.Constraint("Angle", 0, Q("-135 deg")),
    Sketcher.Constraint("DistanceY", -1, 1, 2, 2, Q("0.2 in")),
    Sketcher.Constraint("DistanceX", 2, 2, 0, 2, Q("0.1 in")),
    Sketcher.Constraint("DistanceX", 1, 2, 1, 1, Q("0.091 in")),
    Sketcher.Constraint("DistanceX", 4, 1, 4, 2, Q("0.116 in")),
    Sketcher.Constraint("DistanceX", 0, 2, -1, 1, Q("0.001 in")),
])
pocket7 = doc.addObject("PartDesign::Pocket", "Pocket006")
body.addObject(pocket7)
pocket7.Profile = sketch12
pocket7.Type = "ThroughAll"
pocket7.Reversed = True

# Sketch on YZ plane
sketch13 = doc.addObject("Sketcher::SketchObject", "Sketch012")
body.addObject(sketch13)
sketch13.AttachmentSupport = (doc.YZ_Plane, [""])
sketch13.MapMode = "FlatFace"
sketch13.AttachmentOffset = App.Placement(App.Vector(0, 0, 0.295 * 25.4), App.Rotation())
sketch13.addGeometry([
    Part.LineSegment(App.Vector(0.381, 8.255, 0), App.Vector(-0.0254, 7.8486, 0)),  # 0
    Part.LineSegment(App.Vector(-0.0254, 7.8486, 0), App.Vector(-2.3368, 7.8486, 0)),  # 1
    Part.LineSegment(App.Vector(-2.3368, 7.8486, 0), App.Vector(-2.5654, 7.62, 0)),  # 2
    Part.LineSegment(App.Vector(-2.5654, 7.62, 0), App.Vector(-2.5654, 8.255, 0)),  # 3
    Part.LineSegment(App.Vector(-2.5654, 8.255, 0), App.Vector(0.381, 8.255, 0)),  # 4
], False)
sketch13.addConstraint([
    Sketcher.Constraint("Coincident", 0, 2, 1, 1),
    Sketcher.Constraint("Coincident", 1, 2, 2, 1),
    Sketcher.Constraint("Coincident", 2, 2, 3, 1),
    Sketcher.Constraint("Coincident", 3, 2, 4, 1),
    Sketcher.Constraint("Coincident", 4, 2, 0, 1),
    Sketcher.Constraint("Horizontal", 1),
    Sketcher.Constraint("Vertical", 3),
    Sketcher.Constraint("Horizontal", 4),
    Sketcher.Constraint("Parallel", 0, 2),
    Sketcher.Constraint("Angle", 0, Q("-135 deg")),
    Sketcher.Constraint("DistanceY", -1, 1, 2, 2, Q("0.3 in")),
    Sketcher.Constraint("DistanceX", 2, 2, 0, 2, Q("0.1 in")),
    Sketcher.Constraint("DistanceX", 1, 2, 1, 1, Q("0.091 in")),
    Sketcher.Constraint("DistanceX", 4, 1, 4, 2, Q("0.116 in")),
    Sketcher.Constraint("DistanceX", 0, 2, -1, 1, Q("0.001 in")),
])
pocket8 = doc.addObject("PartDesign::Pocket", "Pocket007")
body.addObject(pocket8)
pocket8.Profile = sketch13
pocket8.Type = "ThroughAll"
pocket8.Reversed = True

# Sketch on XZ plane
sketch14 = doc.addObject("Sketcher::SketchObject", "Sketch013")
body.addObject(sketch14)
sketch14.AttachmentSupport = (doc.XZ_Plane, [""])
sketch14.MapMode = "FlatFace"
sketch14.AttachmentOffset = App.Placement(App.Vector(0, 0, -0.265 * 25.4), App.Rotation())
sketch14.addGeometry([
    Part.LineSegment(App.Vector(6.858, 0.8128, 0), App.Vector(6.858, -0.8128, 0)),
    Part.LineSegment(App.Vector(6.858, -0.8128, 0), App.Vector(0.762, -0.8128, 0)),
    Part.LineSegment(App.Vector(0.762, -0.8128, 0), App.Vector(0.762, 0.8128, 0)),
    Part.LineSegment(App.Vector(0.762, 0.8128, 0), App.Vector(6.858, 0.8128, 0)),
], False)
sketch14.addConstraint([
    Sketcher.Constraint("Coincident", 0, 2, 1, 1),
    Sketcher.Constraint("Coincident", 1, 2, 2, 1),
    Sketcher.Constraint("Coincident", 2, 2, 3, 1),
    Sketcher.Constraint("Coincident", 3, 2, 0, 1),
    Sketcher.Constraint("Vertical", 0),
    Sketcher.Constraint("Horizontal", 1),
    Sketcher.Constraint("Vertical", 2),
    Sketcher.Constraint("Horizontal", 3),
    Sketcher.Constraint("DistanceX", 1, 2, 1, 1, Q("0.24 in")),
    Sketcher.Constraint("DistanceY", 0, 2, 0, 1, Q("0.064 in")),
    Sketcher.Constraint("DistanceX", -1, 1, 0, 2, Q("0.27 in")),
    Sketcher.Constraint("DistanceY", 0, 2, -1, 1, Q("0.032 in")),
])
pocket9 = doc.addObject("PartDesign::Pocket", "Pocket008")
body.addObject(pocket9)
pocket9.Profile = sketch14
pocket9.Length = Q("0.03 in")
pocket9.Reversed = True

# Sketch on XY plane
sketch15 = doc.addObject("Sketcher::SketchObject", "Sketch014")
body.addObject(sketch15)
sketch15.AttachmentSupport = (doc.XY_Plane, [""])
sketch15.MapMode = "FlatFace"
sketch15.AttachmentOffset = App.Placement(App.Vector(0, 0, -0.032 * 25.4), App.Rotation())
sketch15.addGeometry([
    Part.LineSegment(App.Vector(6.240649, 7.782334, 0), App.Vector(1.06258, 5.969, 0)),
    Part.LineSegment(App.Vector(1.06258, 5.969, 0), App.Vector(6.5786, 5.969, 0)),
    Part.LineSegment(App.Vector(6.5786, 5.969, 0), App.Vector(6.5786, 7.542609, 0)),
    Part.ArcOfCircle(Part.Circle(App.Vector(6.3246, 7.542609, 0), App.Vector(0, 0, 1), 0.254), math.radians(0), math.radians(109.3)),
], False)
sketch15.addConstraint([
    Sketcher.Constraint("Coincident", 0, 2, 1, 1),
    Sketcher.Constraint("Coincident", 1, 2, 2, 1),
    Sketcher.Constraint("Tangent", 2, 2, 3, 1),
    Sketcher.Constraint("Tangent", 3, 2, 0, 1),
    Sketcher.Constraint("Horizontal", 1),
    Sketcher.Constraint("Vertical", 2),
    Sketcher.Constraint("Radius", 3, Q("0.01 in")),
    Sketcher.Constraint("Angle", 0, Q("-160.7 deg")),
    Sketcher.Constraint("Distance", 0, Q("0.216 in")),
    Sketcher.Constraint("DistanceX", -1, 1, 3, 3, Q("0.249 in")),
    Sketcher.Constraint("DistanceY", -1, 1, 0, 2, Q("0.235 in")),
])
pad6 = doc.addObject("PartDesign::Pad", "Pad005")
body.addObject(pad6)
pad6.Profile = sketch15
pad6.Length = Q("0.064 in")
doc.recompute()

linearpattern2 = doc.addObject("PartDesign::LinearPattern", "LinearPattern001")
body.addObject(linearpattern2)
linearpattern2.Originals = [pocket9, pad6]
linearpattern2.Direction = (doc.Z_Axis, [""])
linearpattern2.Mode = "offset"
linearpattern2.Offset = Q("0.1 in")
linearpattern2.Occurrences = 4
body.Tip = linearpattern2

doc.recompute()
